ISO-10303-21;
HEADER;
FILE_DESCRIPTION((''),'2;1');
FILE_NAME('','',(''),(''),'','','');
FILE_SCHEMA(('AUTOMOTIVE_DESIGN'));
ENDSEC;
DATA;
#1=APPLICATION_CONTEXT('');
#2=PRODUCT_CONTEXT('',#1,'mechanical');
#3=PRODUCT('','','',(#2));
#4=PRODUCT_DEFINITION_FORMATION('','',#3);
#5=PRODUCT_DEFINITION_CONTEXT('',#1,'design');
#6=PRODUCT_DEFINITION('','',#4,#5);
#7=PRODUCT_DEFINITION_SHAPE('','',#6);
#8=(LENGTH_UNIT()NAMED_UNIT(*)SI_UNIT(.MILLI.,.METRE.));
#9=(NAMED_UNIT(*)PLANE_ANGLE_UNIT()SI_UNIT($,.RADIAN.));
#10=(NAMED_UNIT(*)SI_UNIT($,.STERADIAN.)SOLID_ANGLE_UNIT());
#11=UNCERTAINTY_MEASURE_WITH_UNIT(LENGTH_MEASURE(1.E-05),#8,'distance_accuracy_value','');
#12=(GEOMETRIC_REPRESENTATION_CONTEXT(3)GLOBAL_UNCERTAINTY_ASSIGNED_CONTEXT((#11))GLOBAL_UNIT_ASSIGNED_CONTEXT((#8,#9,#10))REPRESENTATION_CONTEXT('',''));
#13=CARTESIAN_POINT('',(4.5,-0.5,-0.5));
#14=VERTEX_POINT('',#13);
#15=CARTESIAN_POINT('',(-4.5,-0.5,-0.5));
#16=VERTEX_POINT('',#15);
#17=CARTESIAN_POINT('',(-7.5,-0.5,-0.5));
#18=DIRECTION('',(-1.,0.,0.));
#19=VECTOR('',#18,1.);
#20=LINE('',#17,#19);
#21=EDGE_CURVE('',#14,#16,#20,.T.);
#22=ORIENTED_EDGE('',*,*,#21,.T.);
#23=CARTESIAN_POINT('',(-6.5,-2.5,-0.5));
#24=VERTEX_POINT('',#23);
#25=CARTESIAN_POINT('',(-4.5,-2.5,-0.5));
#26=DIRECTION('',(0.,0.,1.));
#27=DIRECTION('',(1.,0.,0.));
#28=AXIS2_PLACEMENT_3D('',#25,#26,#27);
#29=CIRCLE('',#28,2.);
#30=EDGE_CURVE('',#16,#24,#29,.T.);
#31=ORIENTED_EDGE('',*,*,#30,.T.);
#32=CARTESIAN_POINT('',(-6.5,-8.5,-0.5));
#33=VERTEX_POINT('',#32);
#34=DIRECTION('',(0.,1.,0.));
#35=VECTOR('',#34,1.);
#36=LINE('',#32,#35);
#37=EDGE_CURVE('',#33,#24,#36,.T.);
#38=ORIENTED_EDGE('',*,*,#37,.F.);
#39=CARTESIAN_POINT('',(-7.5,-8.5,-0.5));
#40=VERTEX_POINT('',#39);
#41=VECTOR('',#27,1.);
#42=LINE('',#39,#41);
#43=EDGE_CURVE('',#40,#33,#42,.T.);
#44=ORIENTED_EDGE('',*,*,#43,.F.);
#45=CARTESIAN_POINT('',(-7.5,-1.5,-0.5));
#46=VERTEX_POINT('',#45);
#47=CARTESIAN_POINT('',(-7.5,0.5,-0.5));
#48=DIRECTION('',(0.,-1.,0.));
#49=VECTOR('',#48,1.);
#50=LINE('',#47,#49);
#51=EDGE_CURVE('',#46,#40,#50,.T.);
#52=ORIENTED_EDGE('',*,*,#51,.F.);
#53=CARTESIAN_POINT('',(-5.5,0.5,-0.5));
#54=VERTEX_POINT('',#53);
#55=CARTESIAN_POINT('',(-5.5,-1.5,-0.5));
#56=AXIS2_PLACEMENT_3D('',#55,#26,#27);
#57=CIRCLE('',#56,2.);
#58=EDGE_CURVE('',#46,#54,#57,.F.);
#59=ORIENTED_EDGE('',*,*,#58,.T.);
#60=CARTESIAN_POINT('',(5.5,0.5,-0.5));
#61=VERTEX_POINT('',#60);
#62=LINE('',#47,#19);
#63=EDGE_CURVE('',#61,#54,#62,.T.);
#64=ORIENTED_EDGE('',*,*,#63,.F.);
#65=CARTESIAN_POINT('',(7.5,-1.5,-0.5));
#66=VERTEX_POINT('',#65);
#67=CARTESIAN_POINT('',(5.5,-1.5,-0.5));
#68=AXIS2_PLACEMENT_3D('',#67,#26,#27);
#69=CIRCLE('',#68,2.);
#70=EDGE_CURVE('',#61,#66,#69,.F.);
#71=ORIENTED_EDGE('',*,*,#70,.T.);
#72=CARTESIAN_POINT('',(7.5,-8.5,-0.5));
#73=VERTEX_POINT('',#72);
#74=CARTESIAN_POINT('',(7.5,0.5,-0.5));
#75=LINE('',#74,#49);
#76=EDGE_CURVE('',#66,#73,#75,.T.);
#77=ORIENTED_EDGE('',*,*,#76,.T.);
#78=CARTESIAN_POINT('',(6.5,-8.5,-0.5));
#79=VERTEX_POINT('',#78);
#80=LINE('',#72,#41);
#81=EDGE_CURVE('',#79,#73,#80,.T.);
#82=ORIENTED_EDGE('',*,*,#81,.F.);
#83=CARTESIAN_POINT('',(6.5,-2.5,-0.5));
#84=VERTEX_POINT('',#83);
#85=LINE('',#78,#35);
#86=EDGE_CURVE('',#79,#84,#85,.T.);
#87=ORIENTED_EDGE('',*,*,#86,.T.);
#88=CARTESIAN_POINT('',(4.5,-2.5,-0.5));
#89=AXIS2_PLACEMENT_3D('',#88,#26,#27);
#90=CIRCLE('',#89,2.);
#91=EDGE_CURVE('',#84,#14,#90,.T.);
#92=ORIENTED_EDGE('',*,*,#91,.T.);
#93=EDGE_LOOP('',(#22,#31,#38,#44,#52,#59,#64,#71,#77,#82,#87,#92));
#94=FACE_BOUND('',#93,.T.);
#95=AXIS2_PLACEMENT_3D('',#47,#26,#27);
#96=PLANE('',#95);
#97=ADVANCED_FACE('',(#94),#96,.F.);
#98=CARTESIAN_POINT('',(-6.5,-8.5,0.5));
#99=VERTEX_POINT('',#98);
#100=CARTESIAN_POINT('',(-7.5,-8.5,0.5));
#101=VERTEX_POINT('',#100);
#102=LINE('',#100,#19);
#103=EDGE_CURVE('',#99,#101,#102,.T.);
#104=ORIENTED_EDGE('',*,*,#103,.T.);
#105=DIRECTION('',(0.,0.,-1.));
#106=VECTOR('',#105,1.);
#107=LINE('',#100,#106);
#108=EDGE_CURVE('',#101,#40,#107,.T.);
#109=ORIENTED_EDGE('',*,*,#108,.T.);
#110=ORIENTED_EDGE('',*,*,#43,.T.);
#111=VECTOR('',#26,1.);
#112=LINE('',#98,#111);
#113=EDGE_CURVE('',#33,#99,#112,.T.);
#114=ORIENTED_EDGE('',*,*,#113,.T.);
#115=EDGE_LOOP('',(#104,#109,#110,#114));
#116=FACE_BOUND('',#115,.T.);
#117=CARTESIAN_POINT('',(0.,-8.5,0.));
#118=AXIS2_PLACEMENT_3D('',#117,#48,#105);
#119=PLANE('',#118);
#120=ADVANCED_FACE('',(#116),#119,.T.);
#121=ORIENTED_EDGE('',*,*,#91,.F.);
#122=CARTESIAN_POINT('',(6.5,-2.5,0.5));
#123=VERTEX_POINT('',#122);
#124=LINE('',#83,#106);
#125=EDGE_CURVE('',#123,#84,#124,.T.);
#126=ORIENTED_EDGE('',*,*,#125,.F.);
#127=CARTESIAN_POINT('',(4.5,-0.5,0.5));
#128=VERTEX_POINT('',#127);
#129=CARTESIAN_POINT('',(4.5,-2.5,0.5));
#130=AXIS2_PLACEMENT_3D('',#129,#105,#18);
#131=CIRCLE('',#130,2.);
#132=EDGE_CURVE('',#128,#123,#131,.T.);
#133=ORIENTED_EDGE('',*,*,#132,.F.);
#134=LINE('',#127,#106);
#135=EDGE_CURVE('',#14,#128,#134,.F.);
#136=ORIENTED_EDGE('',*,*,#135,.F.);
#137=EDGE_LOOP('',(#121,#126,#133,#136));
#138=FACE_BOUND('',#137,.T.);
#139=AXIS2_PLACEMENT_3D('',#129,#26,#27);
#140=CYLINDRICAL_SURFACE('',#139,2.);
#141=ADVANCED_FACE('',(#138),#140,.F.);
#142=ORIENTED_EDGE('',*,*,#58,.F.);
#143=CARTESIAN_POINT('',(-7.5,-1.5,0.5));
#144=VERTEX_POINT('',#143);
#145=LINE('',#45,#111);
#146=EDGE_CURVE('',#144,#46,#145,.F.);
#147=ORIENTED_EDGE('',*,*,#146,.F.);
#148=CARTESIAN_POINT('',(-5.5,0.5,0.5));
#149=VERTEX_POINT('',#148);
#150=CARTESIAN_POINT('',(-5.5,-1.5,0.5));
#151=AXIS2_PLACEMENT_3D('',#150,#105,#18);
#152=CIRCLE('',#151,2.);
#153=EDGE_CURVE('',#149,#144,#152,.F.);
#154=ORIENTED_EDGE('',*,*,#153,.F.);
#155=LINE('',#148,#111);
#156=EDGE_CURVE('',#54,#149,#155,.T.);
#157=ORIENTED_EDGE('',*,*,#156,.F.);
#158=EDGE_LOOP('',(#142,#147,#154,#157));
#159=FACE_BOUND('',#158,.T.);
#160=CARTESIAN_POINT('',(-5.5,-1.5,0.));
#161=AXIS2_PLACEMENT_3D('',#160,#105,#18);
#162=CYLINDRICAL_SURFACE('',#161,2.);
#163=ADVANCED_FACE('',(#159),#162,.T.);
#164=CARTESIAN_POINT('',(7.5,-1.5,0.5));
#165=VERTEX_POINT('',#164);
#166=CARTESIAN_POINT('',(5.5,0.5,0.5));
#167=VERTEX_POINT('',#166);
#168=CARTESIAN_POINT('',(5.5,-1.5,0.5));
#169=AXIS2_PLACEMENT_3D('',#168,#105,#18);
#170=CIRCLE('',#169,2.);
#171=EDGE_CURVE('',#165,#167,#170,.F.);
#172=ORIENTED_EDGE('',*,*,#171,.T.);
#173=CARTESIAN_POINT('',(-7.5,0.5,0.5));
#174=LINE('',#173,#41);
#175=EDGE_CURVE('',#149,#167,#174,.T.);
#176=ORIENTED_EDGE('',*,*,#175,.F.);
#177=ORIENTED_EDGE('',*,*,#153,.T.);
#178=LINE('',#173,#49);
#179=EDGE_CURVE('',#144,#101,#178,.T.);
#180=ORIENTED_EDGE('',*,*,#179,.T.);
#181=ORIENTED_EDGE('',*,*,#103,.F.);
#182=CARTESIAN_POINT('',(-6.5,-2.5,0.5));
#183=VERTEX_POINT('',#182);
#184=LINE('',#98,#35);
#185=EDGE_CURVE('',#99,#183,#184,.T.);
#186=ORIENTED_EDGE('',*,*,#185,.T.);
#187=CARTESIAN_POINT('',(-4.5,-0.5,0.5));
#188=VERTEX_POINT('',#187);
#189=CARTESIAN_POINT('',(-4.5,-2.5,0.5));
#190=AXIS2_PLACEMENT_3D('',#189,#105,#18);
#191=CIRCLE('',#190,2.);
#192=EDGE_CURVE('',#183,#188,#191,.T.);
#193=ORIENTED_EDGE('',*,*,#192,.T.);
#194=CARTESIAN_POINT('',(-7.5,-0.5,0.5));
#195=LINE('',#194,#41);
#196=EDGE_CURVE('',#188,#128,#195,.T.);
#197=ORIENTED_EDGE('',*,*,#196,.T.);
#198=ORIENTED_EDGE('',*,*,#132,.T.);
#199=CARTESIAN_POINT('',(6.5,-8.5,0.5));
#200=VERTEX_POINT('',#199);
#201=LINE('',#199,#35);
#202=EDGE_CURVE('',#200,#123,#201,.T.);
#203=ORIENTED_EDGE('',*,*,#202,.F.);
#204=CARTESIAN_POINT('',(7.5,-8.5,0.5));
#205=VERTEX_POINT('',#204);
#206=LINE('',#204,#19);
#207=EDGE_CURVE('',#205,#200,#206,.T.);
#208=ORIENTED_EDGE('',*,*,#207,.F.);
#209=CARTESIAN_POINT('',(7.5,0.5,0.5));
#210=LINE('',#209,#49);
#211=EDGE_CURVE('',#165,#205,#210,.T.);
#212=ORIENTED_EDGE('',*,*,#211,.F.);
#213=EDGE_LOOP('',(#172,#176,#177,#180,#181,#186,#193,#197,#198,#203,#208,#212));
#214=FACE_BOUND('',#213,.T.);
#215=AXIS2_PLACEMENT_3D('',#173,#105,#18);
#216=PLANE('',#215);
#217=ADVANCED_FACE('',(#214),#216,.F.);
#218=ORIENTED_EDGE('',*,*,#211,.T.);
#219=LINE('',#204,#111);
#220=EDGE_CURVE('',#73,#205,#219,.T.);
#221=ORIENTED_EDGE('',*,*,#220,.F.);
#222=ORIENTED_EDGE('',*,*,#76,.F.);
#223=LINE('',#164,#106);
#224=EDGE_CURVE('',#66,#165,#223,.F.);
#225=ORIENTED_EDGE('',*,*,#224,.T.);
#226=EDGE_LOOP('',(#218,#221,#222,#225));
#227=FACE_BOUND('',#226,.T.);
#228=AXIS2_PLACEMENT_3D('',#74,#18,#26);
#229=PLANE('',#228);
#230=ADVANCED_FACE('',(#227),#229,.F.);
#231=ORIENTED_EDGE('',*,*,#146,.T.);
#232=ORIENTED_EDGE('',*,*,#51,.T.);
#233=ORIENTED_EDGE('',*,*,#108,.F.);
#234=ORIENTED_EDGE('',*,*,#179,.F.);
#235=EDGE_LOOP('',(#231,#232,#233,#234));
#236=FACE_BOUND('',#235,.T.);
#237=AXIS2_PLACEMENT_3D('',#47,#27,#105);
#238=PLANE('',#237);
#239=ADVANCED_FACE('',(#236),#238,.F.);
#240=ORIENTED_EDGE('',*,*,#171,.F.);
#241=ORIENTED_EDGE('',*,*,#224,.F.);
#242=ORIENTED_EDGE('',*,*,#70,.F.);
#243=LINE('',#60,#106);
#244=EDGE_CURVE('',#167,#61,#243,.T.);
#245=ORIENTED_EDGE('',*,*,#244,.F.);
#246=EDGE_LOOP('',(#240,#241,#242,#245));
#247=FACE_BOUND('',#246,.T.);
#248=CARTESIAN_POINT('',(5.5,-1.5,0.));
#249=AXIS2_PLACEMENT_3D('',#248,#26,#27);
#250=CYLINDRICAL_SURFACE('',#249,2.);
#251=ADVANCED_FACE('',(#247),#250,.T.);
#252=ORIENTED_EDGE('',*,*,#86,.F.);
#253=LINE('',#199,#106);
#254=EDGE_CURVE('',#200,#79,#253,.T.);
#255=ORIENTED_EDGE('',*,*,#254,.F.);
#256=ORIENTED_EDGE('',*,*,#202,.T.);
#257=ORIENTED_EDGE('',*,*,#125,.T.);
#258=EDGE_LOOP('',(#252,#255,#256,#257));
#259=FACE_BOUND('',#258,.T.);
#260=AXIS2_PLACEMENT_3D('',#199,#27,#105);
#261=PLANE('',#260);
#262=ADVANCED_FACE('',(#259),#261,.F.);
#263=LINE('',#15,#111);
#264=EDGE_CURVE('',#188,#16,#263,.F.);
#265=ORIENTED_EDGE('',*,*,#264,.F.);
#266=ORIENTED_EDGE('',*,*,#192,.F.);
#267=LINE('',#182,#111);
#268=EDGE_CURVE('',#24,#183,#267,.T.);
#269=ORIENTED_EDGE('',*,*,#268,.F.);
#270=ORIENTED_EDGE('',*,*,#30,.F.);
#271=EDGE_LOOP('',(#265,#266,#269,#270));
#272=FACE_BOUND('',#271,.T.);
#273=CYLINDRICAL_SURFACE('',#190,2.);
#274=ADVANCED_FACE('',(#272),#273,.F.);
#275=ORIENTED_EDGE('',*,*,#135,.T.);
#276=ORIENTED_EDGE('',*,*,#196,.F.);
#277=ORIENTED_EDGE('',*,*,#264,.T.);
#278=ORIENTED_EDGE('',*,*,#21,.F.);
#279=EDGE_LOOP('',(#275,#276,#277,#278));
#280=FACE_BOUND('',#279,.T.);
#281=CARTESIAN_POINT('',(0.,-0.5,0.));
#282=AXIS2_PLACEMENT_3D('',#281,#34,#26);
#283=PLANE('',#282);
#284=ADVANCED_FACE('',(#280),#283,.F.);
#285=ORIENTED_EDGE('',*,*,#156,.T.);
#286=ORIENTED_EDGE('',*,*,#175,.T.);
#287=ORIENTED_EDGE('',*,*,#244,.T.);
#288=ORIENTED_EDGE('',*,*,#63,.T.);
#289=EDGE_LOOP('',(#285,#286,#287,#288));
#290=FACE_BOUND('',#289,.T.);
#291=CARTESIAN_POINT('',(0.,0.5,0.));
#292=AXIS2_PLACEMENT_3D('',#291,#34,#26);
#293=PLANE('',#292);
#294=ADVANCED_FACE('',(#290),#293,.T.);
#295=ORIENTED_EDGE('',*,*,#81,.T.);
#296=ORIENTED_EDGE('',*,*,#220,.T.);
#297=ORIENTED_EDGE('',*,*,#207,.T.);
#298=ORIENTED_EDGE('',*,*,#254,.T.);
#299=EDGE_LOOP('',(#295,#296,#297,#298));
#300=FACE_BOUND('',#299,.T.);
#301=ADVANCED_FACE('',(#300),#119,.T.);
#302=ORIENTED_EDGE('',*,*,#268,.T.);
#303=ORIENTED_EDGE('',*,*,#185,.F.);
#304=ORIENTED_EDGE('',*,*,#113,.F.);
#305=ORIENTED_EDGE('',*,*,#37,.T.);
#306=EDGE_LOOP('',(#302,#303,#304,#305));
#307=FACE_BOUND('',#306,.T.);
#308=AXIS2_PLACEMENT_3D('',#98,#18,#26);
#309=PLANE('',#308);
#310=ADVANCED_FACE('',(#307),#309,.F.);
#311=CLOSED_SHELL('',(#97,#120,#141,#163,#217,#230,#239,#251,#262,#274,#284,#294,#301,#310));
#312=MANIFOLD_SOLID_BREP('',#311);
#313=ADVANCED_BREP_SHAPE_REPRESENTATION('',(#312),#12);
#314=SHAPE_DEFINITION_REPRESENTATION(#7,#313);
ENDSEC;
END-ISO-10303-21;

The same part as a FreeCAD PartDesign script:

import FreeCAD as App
import Part
import Sketcher

V = App.Vector
Q = App.Units.Quantity


def edges_at(feature, points):
    """Names of the edges that pass closest to the given points."""
    edges = feature.Shape.Edges
    near = lambda p: min(range(len(edges)), key=lambda i: edges[i].distToShape(Part.Vertex(*p))[0])
    return sorted({f"Edge{near(p) + 1}" for p in points})


def add_polygon(sketch, points):
    """Adds a closed chain of lines whose ends are joined by coincident constraints."""
    first, n = sketch.GeometryCount, len(points)
    for a, b in zip(points, points[1:] + points[:1]):
        sketch.addGeometry(Part.LineSegment(App.Vector(*a, 0), App.Vector(*b, 0)), False)
    for i in range(n):
        sketch.addConstraint(Sketcher.Constraint("Coincident", first + i, 2, first + (i + 1) % n, 1))

doc = App.newDocument("Part")
params = doc.addObject("Spreadsheet::Sheet", "Params")
for row, (alias, value) in enumerate([
    ("sketch1_width", "15 mm"),
    ("sketch1_height", "1 mm"),
    ("pad1_length", "1 mm"),
    ("sketch2_width", "1 mm"),
    ("pad2_length", "8 mm"),
    ("fillet_radius", "2 mm"),
], start=1):
    params.set(f"A{row}", alias)
    params.set(f"B{row}", "=" + value)
    params.setAlias(f"B{row}", alias)

body = doc.addObject("PartDesign::Body", "Body")

sketch1 = body.newObject("Sketcher::SketchObject", "Sketch")
sketch1.AttachmentSupport = (doc.getObject("XZ_Plane"), [""])
sketch1.MapMode = "FlatFace"
add_polygon(sketch1, [(-7.5, -0.5), (-7.5, 0.5), (7.5, 0.5), (7.5, -0.5)])
sketch1.addConstraint([
    Sketcher.Constraint("Vertical", 0),
    Sketcher.Constraint("Horizontal", 1),
    Sketcher.Constraint("Vertical", 2),
    Sketcher.Constraint("Horizontal", 3),
    Sketcher.Constraint("Symmetric", 0, 2, 2, 2, -1, 1),
    Sketcher.Constraint("DistanceX", 1, 1, 1, 2, Q("15 mm")),
    Sketcher.Constraint("DistanceY", 0, 1, 0, 2, Q("1 mm")),
])
sketch1.setExpression("Constraints[9]", "Params.sketch1_width")
sketch1.setExpression("Constraints[10]", "Params.sketch1_height")
pad1 = body.newObject("PartDesign::Pad", "Pad")
pad1.Profile = sketch1
pad1.setExpression("Length", "Params.pad1_length")
pad1.Midplane = True

sketch2 = body.newObject("Sketcher::SketchObject", "Sketch001")
sketch2.AttachmentSupport = (doc.getObject("XZ_Plane"), [""])
sketch2.MapMode = "FlatFace"
sketch2.AttachmentOffset = App.Placement(V(0, 0, 0.5), App.Rotation())
add_polygon(sketch2, [(-7.5, 0.5), (-7.5, -0.5), (-6.5, -0.5), (-6.5, 0.5)])
add_polygon(sketch2, [(6.5, 0.5), (6.5, -0.5), (7.5, -0.5), (7.5, 0.5)])
sketch2.addConstraint([
    Sketcher.Constraint("Vertical", 0),
    Sketcher.Constraint("Horizontal", 1),
    Sketcher.Constraint("Vertical", 2),
    Sketcher.Constraint("Horizontal", 3),
    Sketcher.Constraint("Vertical", 4),
    Sketcher.Constraint("Horizontal", 5),
    Sketcher.Constraint("Vertical", 6),
    Sketcher.Constraint("Horizontal", 7),
    Sketcher.Constraint("Symmetric", 2, 2, 4, 2, -1, 1),
    Sketcher.Constraint("Symmetric", 0, 2, 6, 2, -1, 1),
    Sketcher.Constraint("Horizontal", 1, 2, 4, 2),
    Sketcher.Constraint("Equal", 7, 0),
    Sketcher.Constraint("DistanceX", 1, 1, 1, 2, Q("1 mm")),
    Sketcher.Constraint("DistanceX", 1, 2, 4, 2, Q("13 mm")),
])
sketch2.setExpression("Constraints[20]", "Params.sketch2_width")
pad2 = body.newObject("PartDesign::Pad", "Pad001")
pad2.Profile = sketch2
pad2.setExpression("Length", "Params.pad2_length")
doc.recompute()

fillet = body.newObject("PartDesign::Fillet", "Fillet")
fillet.Base = (pad2, edges_at(pad2, [
    (-7.5, 0.5, 0),
    (-6.5, -0.5, 0),
    (6.5, -0.5, 0),
    (7.5, 0.5, 0),
]))
fillet.setExpression("Radius", "Params.fillet_radius")

doc.recompute()
